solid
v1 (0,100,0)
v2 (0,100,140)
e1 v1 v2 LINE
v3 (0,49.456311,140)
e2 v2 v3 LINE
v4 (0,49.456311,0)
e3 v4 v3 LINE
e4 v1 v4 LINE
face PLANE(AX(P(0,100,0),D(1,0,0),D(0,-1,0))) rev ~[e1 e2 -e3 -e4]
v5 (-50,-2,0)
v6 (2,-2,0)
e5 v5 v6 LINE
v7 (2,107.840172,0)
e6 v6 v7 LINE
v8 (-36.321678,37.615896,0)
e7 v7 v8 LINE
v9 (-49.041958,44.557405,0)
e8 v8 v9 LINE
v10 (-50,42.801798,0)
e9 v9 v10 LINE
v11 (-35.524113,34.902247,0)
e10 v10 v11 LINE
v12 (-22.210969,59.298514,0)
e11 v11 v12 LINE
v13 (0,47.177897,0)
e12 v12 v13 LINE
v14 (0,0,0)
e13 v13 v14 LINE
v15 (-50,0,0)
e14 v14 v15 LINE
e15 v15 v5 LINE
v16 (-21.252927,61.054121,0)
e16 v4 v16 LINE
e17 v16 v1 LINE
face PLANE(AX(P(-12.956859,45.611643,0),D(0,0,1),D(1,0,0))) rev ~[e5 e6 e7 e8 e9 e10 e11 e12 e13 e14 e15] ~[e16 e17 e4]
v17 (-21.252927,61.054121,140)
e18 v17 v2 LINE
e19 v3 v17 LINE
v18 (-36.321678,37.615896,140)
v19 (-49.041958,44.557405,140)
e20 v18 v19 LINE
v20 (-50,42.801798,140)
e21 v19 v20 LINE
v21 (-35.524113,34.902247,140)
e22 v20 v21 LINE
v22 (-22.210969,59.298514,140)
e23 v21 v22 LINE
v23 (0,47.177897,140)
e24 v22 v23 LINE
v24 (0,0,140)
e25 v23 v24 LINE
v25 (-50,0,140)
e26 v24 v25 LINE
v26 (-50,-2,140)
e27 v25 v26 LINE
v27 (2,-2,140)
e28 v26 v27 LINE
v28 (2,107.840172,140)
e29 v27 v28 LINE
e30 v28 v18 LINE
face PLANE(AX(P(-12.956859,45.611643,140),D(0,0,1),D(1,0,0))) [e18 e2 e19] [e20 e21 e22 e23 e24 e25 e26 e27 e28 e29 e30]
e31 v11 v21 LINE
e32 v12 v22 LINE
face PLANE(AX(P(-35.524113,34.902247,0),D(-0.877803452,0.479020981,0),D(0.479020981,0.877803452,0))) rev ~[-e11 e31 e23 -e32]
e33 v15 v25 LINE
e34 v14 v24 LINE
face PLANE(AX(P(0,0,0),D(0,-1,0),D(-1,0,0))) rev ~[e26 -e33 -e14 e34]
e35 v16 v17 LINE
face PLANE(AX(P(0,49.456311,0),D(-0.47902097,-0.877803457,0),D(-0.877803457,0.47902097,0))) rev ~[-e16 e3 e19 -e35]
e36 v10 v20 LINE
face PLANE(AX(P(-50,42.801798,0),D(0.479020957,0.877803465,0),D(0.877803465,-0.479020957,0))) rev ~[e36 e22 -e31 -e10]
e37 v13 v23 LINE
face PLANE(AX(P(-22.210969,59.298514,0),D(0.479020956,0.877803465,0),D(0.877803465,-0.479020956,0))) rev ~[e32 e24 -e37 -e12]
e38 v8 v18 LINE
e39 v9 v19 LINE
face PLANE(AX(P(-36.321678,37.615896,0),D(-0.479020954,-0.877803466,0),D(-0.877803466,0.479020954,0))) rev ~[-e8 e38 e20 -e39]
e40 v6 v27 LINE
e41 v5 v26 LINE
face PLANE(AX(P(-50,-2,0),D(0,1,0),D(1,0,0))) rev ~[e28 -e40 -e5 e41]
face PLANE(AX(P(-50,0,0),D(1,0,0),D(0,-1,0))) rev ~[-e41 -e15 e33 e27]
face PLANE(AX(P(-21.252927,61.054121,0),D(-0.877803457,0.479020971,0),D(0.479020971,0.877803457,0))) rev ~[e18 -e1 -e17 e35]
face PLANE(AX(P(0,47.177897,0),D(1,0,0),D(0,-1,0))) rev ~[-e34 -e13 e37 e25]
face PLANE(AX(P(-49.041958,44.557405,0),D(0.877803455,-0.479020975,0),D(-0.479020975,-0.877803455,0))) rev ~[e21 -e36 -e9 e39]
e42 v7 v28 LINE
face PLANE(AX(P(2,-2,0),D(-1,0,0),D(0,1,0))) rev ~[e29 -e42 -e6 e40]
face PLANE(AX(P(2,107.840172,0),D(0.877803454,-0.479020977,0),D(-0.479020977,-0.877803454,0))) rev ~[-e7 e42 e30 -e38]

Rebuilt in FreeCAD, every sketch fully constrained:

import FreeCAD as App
import Part
import Sketcher

V = App.Vector

doc = App.newDocument("Part")
body = doc.addObject("PartDesign::Body", "Body")

sketch1 = doc.addObject("Sketcher::SketchObject", "Sketch")
body.addObject(sketch1)
sketch1.AttachmentSupport = (doc.XY_Plane, [""])
sketch1.MapMode = "FlatFace"
sketch1.addGeometry([
    Part.LineSegment(V(0, 0, 0), V(-50, 0, 0)),
    Part.LineSegment(V(-50, 0, 0), V(-50, -2, 0)),
    Part.LineSegment(V(-50, -2, 0), V(2, -2, 0)),
    Part.LineSegment(V(2, -2, 0), V(2, 107.840172, 0)),
    Part.LineSegment(V(2, 107.840172, 0), V(-36.321678, 37.615896, 0)),
    Part.LineSegment(V(-36.321678, 37.615896, 0), V(-49.041958, 44.557405, 0)),
    Part.LineSegment(V(-49.041958, 44.557405, 0), V(-50, 42.801798, 0)),
    Part.LineSegment(V(-50, 42.801798, 0), V(-35.524113, 34.902247, 0)),
    Part.LineSegment(V(-35.524113, 34.902247, 0), V(-22.210969, 59.298514, 0)),
    Part.LineSegment(V(-22.210969, 59.298514, 0), V(0, 47.177897, 0)),
    Part.LineSegment(V(0, 47.177897, 0), V(0, 0, 0)),
    Part.LineSegment(V(-21.252927, 61.054121, 0), V(0, 100, 0)),
    Part.LineSegment(V(0, 100, 0), V(0, 49.456311, 0)),
    Part.LineSegment(V(0, 49.456311, 0), V(-21.252927, 61.054121, 0)),
], False)
sketch1.addConstraint([
    Sketcher.Constraint("Coincident", 0, 2, 1, 1),
    Sketcher.Constraint("Coincident", 1, 2, 2, 1),
    Sketcher.Constraint("Coincident", 2, 2, 3, 1),
    Sketcher.Constraint("Coincident", 3, 2, 4, 1),
    Sketcher.Constraint("Coincident", 4, 2, 5, 1),
    Sketcher.Constraint("Coincident", 5, 2, 6, 1),
    Sketcher.Constraint("Coincident", 6, 2, 7, 1),
    Sketcher.Constraint("Coincident", 7, 2, 8, 1),
    Sketcher.Constraint("Coincident", 8, 2, 9, 1),
    Sketcher.Constraint("Coincident", 9, 2, 10, 1),
    Sketcher.Constraint("Coincident", 10, 2, 0, 1),
    Sketcher.Constraint("Coincident", 11, 2, 12, 1),
    Sketcher.Constraint("Coincident", 12, 2, 13, 1),
    Sketcher.Constraint("Coincident", 13, 2, 11, 1),
    Sketcher.Constraint("Horizontal", 0),
    Sketcher.Constraint("Vertical", 1),
    Sketcher.Constraint("Horizontal", 2),
    Sketcher.Constraint("Vertical", 3),
    Sketcher.Constraint("Vertical", 10),
    Sketcher.Constraint("Vertical", 12),
    Sketcher.Constraint("Coincident", 10, 2, -1, 1),
    Sketcher.Constraint("PointOnObject", 11, 2, -2),
    Sketcher.Constraint("Perpendicular", 4, 5),
    Sketcher.Constraint("Perpendicular", 5, 6),
    Sketcher.Constraint("Perpendicular", 6, 7),
    Sketcher.Constraint("Perpendicular", 7, 8),
    Sketcher.Constraint("Perpendicular", 8, 9),
    Sketcher.Constraint("Perpendicular", 9, 11),
    Sketcher.Constraint("Perpendicular", 11, 13),
    Sketcher.Constraint("Vertical", 1, 2, 6, 2),
    Sketcher.Constraint("DistanceX", 0, 2, 0, 1, 50.0),
    Sketcher.Constraint("DistanceX", 2, 1, 2, 2, 52.0),
    Sketcher.Constraint("DistanceY", 1, 2, 1, 1, 2.0),
    Sketcher.Constraint("Distance", 4, 80.0),
    Sketcher.Constraint("Distance", 6, 2.0),
    Sketcher.Constraint("DistanceY", -1, 1, 11, 2, 100.0),
    Sketcher.Constraint("DistanceY", 4, 2, 9, 2, 9.562001),
    Sketcher.Constraint("DistanceY", 3, 1, 3, 2, 109.840172),
    Sketcher.Constraint("DistanceY", 12, 2, 12, 1, 50.543689),
    Sketcher.Constraint("DistanceY", 4, 2, 6, 2, 5.185902),
    Sketcher.Constraint("DistanceX", 8, 2, -1, 1, 22.210969),
])
pad1 = doc.addObject("PartDesign::Pad", "Pad")
body.addObject(pad1)
pad1.Profile = sketch1
pad1.Length = 140

doc.recompute()
